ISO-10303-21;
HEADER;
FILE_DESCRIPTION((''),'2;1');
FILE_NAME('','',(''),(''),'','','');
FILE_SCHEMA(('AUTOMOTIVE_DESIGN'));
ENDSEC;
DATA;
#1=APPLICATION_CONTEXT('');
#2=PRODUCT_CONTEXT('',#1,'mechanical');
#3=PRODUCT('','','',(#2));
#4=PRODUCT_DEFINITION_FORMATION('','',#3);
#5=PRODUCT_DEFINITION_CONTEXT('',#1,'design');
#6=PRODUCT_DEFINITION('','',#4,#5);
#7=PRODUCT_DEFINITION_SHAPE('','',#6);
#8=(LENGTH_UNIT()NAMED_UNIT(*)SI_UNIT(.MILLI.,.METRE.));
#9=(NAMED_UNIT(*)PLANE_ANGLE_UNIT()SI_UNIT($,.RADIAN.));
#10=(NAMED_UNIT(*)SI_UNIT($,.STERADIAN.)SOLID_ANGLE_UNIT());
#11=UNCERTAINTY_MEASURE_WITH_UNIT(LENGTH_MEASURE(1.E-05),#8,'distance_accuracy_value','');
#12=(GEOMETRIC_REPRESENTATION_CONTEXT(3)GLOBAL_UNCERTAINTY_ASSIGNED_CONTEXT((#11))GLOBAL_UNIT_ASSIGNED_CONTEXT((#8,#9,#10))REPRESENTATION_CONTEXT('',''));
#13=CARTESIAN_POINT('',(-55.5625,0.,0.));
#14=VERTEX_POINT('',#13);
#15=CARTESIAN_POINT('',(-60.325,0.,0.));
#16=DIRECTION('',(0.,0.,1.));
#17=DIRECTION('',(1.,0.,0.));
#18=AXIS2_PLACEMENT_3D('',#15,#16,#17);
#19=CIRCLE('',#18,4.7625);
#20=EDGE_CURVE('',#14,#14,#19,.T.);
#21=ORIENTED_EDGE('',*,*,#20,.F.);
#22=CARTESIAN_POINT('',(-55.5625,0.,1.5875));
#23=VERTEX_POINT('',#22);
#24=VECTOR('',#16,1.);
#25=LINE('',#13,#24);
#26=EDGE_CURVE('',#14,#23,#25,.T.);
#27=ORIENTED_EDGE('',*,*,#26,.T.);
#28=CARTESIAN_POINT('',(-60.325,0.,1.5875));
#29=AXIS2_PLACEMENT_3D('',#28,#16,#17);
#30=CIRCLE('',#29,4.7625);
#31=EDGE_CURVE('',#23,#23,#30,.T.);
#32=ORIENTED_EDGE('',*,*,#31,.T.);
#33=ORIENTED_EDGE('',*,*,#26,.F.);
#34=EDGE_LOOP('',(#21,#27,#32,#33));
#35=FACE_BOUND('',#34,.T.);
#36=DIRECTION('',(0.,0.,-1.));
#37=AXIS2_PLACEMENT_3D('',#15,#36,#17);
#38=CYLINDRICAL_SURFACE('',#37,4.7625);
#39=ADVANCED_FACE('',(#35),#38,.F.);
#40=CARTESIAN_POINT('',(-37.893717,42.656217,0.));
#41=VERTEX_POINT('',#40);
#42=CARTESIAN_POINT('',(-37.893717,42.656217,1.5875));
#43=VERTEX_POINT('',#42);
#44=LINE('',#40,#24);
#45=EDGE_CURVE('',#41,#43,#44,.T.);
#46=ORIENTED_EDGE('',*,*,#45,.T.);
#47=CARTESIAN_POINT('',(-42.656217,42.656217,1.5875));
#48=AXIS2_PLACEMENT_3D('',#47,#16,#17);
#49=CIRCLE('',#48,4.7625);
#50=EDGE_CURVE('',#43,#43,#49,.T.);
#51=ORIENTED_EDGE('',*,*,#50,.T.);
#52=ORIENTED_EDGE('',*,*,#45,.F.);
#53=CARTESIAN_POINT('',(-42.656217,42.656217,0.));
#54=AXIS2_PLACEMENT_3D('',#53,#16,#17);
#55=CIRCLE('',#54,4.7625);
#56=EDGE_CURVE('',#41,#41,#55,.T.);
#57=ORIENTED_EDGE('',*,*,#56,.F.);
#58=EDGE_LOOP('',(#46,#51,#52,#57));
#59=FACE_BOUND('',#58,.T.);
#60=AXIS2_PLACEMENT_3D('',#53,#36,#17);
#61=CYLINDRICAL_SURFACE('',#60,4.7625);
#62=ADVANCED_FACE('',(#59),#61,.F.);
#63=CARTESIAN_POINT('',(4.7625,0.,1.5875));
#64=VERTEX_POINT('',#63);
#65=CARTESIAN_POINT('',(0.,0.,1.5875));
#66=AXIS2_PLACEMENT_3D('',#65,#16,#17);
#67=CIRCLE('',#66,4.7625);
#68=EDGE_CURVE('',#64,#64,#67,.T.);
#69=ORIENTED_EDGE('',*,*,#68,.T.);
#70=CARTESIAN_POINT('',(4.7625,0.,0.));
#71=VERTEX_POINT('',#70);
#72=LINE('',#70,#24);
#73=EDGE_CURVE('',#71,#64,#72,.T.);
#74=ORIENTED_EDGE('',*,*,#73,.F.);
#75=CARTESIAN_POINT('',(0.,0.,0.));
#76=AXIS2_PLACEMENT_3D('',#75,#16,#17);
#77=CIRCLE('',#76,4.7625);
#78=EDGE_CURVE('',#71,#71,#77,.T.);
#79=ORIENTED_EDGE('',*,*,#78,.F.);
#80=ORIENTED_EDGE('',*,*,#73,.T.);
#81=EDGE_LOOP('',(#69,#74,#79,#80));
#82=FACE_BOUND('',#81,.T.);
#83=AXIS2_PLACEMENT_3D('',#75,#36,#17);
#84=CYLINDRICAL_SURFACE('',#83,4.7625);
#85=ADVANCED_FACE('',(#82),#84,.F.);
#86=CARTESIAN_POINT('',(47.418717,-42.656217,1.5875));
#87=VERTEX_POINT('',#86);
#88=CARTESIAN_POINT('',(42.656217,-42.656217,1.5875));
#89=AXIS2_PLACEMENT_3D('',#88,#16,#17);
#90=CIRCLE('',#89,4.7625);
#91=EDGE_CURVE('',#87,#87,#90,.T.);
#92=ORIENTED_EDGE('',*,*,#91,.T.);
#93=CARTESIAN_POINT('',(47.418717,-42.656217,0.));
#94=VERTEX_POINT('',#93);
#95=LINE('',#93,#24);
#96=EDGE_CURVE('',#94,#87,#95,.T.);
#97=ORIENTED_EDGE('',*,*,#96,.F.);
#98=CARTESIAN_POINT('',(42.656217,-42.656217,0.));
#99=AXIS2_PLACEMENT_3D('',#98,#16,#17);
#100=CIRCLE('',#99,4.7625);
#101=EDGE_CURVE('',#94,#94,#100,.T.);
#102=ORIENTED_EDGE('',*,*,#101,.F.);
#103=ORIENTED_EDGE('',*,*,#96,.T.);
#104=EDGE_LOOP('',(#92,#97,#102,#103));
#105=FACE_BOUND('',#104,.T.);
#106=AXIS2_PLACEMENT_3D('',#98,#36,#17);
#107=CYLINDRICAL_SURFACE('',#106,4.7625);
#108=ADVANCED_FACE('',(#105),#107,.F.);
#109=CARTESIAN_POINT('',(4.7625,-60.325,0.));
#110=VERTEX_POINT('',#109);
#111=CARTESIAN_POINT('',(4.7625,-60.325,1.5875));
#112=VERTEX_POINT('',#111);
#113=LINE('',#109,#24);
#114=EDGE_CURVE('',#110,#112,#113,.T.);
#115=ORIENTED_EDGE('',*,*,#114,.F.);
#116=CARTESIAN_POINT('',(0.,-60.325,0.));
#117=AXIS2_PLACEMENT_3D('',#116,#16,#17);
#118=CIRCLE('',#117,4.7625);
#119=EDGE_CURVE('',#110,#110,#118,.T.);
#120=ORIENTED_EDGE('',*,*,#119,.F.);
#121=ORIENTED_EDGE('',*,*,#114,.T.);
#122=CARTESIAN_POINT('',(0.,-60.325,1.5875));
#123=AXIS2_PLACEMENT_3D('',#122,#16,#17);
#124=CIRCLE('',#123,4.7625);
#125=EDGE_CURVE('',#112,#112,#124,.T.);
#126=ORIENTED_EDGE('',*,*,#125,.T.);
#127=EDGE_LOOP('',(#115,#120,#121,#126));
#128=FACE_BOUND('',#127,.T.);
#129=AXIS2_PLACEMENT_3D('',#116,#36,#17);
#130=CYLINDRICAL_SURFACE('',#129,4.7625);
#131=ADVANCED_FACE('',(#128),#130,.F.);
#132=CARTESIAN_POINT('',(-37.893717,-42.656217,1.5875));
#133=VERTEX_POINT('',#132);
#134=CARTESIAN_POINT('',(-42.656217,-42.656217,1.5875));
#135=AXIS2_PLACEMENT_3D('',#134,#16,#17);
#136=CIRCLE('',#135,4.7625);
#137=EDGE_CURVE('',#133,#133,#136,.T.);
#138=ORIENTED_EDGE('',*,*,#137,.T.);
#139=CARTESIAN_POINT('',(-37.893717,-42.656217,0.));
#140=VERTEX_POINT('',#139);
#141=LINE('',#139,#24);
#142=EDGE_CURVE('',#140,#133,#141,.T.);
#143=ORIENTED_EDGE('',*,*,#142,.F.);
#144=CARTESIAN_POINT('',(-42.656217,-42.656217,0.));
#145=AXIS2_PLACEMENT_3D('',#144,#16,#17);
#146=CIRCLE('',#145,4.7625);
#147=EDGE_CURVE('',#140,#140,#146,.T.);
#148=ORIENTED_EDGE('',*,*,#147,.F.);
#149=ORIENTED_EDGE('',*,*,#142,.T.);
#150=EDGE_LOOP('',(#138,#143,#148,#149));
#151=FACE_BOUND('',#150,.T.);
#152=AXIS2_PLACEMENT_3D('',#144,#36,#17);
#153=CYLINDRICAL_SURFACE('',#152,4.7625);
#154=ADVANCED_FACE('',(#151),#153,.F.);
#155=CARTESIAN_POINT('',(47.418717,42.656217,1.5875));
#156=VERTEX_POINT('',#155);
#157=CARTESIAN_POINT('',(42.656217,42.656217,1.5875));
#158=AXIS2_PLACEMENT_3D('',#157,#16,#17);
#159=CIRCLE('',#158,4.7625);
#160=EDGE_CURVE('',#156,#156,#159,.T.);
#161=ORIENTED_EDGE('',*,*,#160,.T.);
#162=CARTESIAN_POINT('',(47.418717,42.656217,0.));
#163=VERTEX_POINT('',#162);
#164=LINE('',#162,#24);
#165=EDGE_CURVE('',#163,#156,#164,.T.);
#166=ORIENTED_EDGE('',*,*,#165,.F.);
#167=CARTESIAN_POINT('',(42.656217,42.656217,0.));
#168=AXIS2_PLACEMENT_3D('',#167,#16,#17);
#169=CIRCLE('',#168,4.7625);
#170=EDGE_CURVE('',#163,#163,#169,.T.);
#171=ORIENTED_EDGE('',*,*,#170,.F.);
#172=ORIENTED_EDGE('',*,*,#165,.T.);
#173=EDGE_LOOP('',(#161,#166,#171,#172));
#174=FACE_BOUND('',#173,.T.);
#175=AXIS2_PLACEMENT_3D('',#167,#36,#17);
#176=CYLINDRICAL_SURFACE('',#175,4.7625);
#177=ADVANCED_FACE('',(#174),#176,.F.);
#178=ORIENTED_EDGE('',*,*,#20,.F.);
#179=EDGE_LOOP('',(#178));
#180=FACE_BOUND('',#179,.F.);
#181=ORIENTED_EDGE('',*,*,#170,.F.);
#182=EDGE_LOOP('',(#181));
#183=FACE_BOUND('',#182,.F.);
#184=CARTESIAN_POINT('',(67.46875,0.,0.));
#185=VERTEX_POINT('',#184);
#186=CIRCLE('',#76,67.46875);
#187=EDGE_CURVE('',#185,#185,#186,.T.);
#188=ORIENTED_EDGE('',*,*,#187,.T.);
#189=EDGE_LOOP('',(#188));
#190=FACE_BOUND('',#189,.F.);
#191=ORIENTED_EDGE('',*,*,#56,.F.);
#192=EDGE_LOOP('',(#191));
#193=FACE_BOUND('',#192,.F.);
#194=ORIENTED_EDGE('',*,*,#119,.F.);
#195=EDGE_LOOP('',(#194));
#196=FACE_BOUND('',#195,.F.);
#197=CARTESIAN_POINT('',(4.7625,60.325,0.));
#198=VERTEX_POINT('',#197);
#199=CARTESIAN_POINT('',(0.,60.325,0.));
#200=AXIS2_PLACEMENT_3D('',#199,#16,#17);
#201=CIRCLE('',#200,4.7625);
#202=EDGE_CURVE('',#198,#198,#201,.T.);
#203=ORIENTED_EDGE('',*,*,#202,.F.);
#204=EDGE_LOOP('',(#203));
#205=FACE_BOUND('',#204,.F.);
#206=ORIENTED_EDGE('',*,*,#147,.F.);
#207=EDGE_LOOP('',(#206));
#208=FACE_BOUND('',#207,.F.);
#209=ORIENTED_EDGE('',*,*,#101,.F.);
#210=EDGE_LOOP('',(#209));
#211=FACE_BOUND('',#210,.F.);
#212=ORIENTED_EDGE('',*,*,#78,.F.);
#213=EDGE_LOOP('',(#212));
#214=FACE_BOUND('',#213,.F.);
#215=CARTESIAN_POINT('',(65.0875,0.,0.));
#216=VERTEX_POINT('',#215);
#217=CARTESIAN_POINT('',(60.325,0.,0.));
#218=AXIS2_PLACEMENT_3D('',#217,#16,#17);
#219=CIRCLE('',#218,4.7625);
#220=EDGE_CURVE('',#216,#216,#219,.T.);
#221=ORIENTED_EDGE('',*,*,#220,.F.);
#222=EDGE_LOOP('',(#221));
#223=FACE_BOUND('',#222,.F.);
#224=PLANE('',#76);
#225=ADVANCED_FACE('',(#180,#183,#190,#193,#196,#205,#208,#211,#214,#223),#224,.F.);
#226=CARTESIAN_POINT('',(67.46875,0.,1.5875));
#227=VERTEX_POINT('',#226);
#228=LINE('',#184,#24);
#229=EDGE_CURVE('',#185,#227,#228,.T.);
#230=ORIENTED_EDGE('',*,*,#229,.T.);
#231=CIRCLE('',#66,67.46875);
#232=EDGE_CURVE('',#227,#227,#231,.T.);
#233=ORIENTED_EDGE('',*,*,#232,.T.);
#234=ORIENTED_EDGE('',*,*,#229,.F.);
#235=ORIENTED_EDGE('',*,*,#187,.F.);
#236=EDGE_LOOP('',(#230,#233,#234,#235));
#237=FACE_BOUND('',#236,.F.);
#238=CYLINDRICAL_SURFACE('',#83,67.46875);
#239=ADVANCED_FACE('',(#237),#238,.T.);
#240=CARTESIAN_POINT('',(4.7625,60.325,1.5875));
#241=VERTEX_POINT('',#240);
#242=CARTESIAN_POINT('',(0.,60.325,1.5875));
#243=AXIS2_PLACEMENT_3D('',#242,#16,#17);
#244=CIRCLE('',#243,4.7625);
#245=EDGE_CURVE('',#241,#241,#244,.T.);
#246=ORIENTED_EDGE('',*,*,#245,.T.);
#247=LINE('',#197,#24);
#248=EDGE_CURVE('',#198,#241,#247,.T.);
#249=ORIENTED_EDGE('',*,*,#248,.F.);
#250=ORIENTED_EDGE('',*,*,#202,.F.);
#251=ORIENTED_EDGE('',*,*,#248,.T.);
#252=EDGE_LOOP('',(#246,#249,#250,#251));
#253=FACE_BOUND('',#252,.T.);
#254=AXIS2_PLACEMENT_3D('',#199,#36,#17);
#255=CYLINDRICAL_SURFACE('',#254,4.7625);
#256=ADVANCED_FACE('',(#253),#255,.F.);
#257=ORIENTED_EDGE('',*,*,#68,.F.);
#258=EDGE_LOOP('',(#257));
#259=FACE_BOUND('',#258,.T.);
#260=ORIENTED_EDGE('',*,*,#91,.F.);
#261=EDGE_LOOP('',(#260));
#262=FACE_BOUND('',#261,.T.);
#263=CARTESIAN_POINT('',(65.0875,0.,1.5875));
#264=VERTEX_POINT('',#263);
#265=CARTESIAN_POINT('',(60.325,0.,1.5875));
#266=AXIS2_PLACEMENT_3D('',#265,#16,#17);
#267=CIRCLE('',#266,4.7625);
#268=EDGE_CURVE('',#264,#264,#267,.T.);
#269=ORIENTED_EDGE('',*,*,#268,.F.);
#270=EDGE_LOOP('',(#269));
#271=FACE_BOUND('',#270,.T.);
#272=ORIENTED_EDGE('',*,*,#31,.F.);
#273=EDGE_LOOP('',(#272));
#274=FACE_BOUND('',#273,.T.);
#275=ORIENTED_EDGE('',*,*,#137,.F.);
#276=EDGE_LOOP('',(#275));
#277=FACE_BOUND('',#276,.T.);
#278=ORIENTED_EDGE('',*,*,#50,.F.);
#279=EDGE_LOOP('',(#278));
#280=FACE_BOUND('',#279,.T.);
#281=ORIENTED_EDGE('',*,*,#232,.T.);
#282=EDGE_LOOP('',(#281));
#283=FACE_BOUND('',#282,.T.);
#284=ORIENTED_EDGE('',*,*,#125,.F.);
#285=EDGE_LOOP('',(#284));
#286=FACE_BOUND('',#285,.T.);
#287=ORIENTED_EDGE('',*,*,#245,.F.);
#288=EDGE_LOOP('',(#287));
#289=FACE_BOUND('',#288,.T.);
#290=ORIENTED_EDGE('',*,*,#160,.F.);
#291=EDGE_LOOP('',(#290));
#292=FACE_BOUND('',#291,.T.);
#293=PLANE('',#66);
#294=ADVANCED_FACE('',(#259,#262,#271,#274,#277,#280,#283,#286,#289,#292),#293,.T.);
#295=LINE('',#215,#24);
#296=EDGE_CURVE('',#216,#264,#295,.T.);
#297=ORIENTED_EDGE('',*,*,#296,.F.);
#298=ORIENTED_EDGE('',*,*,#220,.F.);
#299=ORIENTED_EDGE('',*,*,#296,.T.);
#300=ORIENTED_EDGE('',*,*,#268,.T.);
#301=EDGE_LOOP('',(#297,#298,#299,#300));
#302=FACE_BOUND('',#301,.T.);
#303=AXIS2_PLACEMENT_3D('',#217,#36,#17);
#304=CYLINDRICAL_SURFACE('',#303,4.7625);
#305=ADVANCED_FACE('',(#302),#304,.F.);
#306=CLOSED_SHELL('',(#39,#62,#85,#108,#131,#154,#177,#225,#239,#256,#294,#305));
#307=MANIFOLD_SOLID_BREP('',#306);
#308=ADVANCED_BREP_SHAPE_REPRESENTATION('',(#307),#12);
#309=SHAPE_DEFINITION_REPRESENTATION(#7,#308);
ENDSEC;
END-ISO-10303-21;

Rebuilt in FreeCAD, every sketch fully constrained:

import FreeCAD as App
import Part
import Sketcher
from FreeCAD import Vector
Q = App.Units.Quantity

doc = App.newDocument("Part")
params = doc.addObject("Spreadsheet::Sheet", "Params")
for row, (alias, value) in enumerate([
    ("sketch1_diameter", "5.3125 in"),
    ("sketch1_diameter2", "0.375 in"),
    ("pad1_length", "0.0625 in"),
], start=1):
    params.set(f"A{row}", alias)
    params.set(f"B{row}", "=" + value)
    params.setAlias(f"B{row}", alias)

body = doc.addObject("PartDesign::Body", "Body")

sketch1 = body.newObject("Sketcher::SketchObject", "Sketch")
sketch1.AttachmentSupport = (doc.getObject("XY_Plane"), [""])
sketch1.MapMode = "FlatFace"
sketch1.addGeometry([
    Part.Circle(Vector(0, 0, 0), Vector(0, 0, 1), 67.46875),
    Part.Circle(Vector(-42.656217, -42.656217, 0), Vector(0, 0, 1), 4.7625),
    Part.Circle(Vector(0, -60.325, 0), Vector(0, 0, 1), 4.7625),
    Part.Circle(Vector(42.656217, -42.656217, 0), Vector(0, 0, 1), 4.7625),
    Part.Circle(Vector(-60.325, 0, 0), Vector(0, 0, 1), 4.7625),
    Part.Circle(Vector(-42.656217, 42.656217, 0), Vector(0, 0, 1), 4.7625),
    Part.Circle(Vector(0, 0, 0), Vector(0, 0, 1), 4.7625),
    Part.Circle(Vector(60.325, 0, 0), Vector(0, 0, 1), 4.7625),
    Part.Circle(Vector(0, 60.325, 0), Vector(0, 0, 1), 4.7625),
    Part.Circle(Vector(42.656217, 42.656217, 0), Vector(0, 0, 1), 4.7625),
], False)
sketch1.addConstraint([
    Sketcher.Constraint("Coincident", 0, 3, -1, 1),
    Sketcher.Constraint("Coincident", 6, 3, -1, 1),
    Sketcher.Constraint("Equal", 1, 2),
    Sketcher.Constraint("Equal", 2, 3),
    Sketcher.Constraint("Equal", 3, 4),
    Sketcher.Constraint("Equal", 4, 5),
    Sketcher.Constraint("Equal", 5, 6),
    Sketcher.Constraint("Equal", 6, 7),
    Sketcher.Constraint("Equal", 7, 8),
    Sketcher.Constraint("Equal", 8, 9),
    Sketcher.Constraint("Symmetric", 3, 3, 5, 3, -1, 1),
    Sketcher.Constraint("Symmetric", 4, 3, 7, 3, -1, 1),
    Sketcher.Constraint("Symmetric", 2, 3, 8, 3, -1, 1),
    Sketcher.Constraint("Symmetric", 1, 3, 9, 3, -1, 1),
    Sketcher.Constraint("Symmetric", 1, 3, 3, 3, -2),
    Sketcher.Constraint("PointOnObject", 2, 3, -2),
    Sketcher.Constraint("PointOnObject", 4, 3, -1),
    Sketcher.Constraint("Diameter", 0, Q("5.3125 in")),
    Sketcher.Constraint("Diameter", 1, Q("0.375 in")),
    Sketcher.Constraint("DistanceY", 2, 3, -1, 1, Q("2.375 in")),
    Sketcher.Constraint("DistanceX", 4, 3, -1, 1, Q("2.375 in")),
    Sketcher.Constraint("DistanceX", 1, 3, -1, 1, Q("42.656217 mm")),
    Sketcher.Constraint("DistanceY", 1, 3, -1, 1, Q("42.656217 mm")),
])
sketch1.setExpression("Constraints[17]", "Params.sketch1_diameter")
sketch1.setExpression("Constraints[18]", "Params.sketch1_diameter2")
pad1 = body.newObject("PartDesign::Pad", "Pad")
pad1.Profile = sketch1
pad1.setExpression("Length", "Params.pad1_length")

doc.recompute()
